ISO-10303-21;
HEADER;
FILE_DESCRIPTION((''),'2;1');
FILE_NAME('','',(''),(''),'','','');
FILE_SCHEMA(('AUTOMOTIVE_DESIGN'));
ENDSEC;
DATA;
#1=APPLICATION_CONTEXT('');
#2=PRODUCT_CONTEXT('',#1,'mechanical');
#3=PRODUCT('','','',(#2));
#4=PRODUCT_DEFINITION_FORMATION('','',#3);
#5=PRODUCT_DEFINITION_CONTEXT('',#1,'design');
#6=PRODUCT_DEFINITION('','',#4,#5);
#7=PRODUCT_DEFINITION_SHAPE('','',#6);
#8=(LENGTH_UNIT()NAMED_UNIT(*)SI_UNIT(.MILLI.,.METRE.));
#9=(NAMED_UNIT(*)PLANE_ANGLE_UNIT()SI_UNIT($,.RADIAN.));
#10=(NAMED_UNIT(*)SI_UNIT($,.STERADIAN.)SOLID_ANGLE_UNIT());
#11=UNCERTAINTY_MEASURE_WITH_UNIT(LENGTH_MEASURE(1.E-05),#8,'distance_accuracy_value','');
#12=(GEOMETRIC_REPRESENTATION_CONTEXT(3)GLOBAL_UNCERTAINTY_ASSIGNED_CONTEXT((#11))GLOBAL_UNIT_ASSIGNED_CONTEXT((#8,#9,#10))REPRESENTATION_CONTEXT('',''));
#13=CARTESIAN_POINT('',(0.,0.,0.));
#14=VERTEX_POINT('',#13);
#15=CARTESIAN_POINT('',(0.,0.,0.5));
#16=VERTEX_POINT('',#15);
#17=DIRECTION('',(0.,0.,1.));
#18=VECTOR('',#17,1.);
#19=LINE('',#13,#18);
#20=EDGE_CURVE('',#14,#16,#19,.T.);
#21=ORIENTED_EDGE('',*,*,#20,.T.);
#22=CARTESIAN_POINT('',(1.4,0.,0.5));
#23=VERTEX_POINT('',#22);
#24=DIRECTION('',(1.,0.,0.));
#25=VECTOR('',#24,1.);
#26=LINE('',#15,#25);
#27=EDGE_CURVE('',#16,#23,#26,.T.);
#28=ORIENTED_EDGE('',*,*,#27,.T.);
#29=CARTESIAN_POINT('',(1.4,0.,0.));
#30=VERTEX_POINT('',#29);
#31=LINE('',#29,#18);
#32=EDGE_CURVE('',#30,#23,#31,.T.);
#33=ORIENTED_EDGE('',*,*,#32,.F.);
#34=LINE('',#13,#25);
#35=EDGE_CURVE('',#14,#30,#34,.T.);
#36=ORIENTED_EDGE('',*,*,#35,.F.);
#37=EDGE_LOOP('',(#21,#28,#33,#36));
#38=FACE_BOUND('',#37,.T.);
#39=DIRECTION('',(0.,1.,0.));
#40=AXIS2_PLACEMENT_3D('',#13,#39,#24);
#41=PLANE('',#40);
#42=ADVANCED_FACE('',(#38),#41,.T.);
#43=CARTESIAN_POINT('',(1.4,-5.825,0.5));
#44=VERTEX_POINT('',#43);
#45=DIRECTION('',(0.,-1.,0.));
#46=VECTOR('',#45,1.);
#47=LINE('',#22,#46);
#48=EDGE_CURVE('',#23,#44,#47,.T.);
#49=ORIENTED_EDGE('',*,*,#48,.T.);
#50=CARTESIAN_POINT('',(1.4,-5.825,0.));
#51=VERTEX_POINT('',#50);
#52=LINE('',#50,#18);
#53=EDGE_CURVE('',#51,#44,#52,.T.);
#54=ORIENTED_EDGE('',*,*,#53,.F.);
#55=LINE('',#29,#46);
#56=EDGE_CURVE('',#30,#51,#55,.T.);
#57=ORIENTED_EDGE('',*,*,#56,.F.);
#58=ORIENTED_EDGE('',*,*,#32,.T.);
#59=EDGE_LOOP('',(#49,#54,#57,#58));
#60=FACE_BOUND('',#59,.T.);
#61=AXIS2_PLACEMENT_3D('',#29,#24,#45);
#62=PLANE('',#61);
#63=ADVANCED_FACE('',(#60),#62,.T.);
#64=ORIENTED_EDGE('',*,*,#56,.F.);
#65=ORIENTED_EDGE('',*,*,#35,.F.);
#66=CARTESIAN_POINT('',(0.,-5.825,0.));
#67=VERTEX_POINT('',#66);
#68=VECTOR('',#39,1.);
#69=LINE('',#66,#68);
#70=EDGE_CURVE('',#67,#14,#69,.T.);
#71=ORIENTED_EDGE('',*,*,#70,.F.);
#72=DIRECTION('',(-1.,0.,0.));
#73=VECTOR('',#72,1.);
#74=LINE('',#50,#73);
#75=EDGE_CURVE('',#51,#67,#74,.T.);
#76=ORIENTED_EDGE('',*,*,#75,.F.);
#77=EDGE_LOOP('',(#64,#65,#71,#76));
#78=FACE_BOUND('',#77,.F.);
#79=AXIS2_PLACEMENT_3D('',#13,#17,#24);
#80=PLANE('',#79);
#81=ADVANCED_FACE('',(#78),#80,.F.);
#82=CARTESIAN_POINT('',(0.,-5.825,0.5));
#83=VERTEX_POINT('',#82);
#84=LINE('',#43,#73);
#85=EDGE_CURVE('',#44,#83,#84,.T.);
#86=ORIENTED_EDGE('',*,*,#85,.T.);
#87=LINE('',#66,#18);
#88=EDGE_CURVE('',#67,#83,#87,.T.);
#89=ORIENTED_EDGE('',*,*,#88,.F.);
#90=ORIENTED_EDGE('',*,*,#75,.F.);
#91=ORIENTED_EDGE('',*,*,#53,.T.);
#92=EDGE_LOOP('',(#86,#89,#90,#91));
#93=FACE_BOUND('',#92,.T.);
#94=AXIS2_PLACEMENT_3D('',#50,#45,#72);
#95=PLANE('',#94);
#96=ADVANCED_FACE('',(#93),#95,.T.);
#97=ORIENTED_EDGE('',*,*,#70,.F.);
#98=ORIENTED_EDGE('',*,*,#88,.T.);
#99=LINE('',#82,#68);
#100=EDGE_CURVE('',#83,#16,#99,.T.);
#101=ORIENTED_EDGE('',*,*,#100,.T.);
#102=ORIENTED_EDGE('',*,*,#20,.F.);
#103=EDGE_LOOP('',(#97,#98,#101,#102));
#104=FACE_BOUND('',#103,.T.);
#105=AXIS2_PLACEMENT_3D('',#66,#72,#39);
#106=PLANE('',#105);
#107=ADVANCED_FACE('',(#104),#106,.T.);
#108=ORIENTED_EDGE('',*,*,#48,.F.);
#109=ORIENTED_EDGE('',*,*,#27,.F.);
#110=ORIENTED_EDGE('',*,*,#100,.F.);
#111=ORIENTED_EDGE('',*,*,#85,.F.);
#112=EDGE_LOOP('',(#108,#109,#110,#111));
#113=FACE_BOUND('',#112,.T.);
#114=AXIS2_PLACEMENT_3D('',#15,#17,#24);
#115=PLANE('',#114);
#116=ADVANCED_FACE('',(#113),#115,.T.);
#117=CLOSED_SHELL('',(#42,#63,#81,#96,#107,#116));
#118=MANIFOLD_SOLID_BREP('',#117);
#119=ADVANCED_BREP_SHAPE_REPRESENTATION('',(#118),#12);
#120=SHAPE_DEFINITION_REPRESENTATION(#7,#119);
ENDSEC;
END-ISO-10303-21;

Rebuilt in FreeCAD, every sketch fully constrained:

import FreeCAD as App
import Part
import Sketcher


def add_polygon(sketch, points):
    """Adds a closed chain of lines whose ends are joined by coincident constraints."""
    first, n = sketch.GeometryCount, len(points)
    for a, b in zip(points, points[1:] + points[:1]):
        sketch.addGeometry(Part.LineSegment(App.Vector(*a, 0), App.Vector(*b, 0)), False)
    for i in range(n):
        sketch.addConstraint(Sketcher.Constraint("Coincident", first + i, 2, first + (i + 1) % n, 1))

doc = App.newDocument("Part")
body = doc.addObject("PartDesign::Body", "Body")

sketch1 = body.newObject("Sketcher::SketchObject", "Sketch")
sketch1.AttachmentSupport = (doc.getObject("XY_Plane"), [""])
sketch1.MapMode = "FlatFace"
add_polygon(sketch1, [(1.4, 0), (0, 0), (0, -5.8), (1.4, -5.8)])
sketch1.addConstraint([
    Sketcher.Constraint("Horizontal", 0),
    Sketcher.Constraint("Vertical", 1),
    Sketcher.Constraint("Horizontal", 2),
    Sketcher.Constraint("Vertical", 3),
    Sketcher.Constraint("Coincident", 0, 2, -1, 1),
    Sketcher.Constraint("DistanceX", 0, 2, 0, 1, 1.4),
    Sketcher.Constraint("DistanceY", 1, 2, 1, 1, 5.825),
])
pad1 = body.newObject("PartDesign::Pad", "Pad")
pad1.Profile = sketch1
pad1.Length = 0.5

doc.recompute()
